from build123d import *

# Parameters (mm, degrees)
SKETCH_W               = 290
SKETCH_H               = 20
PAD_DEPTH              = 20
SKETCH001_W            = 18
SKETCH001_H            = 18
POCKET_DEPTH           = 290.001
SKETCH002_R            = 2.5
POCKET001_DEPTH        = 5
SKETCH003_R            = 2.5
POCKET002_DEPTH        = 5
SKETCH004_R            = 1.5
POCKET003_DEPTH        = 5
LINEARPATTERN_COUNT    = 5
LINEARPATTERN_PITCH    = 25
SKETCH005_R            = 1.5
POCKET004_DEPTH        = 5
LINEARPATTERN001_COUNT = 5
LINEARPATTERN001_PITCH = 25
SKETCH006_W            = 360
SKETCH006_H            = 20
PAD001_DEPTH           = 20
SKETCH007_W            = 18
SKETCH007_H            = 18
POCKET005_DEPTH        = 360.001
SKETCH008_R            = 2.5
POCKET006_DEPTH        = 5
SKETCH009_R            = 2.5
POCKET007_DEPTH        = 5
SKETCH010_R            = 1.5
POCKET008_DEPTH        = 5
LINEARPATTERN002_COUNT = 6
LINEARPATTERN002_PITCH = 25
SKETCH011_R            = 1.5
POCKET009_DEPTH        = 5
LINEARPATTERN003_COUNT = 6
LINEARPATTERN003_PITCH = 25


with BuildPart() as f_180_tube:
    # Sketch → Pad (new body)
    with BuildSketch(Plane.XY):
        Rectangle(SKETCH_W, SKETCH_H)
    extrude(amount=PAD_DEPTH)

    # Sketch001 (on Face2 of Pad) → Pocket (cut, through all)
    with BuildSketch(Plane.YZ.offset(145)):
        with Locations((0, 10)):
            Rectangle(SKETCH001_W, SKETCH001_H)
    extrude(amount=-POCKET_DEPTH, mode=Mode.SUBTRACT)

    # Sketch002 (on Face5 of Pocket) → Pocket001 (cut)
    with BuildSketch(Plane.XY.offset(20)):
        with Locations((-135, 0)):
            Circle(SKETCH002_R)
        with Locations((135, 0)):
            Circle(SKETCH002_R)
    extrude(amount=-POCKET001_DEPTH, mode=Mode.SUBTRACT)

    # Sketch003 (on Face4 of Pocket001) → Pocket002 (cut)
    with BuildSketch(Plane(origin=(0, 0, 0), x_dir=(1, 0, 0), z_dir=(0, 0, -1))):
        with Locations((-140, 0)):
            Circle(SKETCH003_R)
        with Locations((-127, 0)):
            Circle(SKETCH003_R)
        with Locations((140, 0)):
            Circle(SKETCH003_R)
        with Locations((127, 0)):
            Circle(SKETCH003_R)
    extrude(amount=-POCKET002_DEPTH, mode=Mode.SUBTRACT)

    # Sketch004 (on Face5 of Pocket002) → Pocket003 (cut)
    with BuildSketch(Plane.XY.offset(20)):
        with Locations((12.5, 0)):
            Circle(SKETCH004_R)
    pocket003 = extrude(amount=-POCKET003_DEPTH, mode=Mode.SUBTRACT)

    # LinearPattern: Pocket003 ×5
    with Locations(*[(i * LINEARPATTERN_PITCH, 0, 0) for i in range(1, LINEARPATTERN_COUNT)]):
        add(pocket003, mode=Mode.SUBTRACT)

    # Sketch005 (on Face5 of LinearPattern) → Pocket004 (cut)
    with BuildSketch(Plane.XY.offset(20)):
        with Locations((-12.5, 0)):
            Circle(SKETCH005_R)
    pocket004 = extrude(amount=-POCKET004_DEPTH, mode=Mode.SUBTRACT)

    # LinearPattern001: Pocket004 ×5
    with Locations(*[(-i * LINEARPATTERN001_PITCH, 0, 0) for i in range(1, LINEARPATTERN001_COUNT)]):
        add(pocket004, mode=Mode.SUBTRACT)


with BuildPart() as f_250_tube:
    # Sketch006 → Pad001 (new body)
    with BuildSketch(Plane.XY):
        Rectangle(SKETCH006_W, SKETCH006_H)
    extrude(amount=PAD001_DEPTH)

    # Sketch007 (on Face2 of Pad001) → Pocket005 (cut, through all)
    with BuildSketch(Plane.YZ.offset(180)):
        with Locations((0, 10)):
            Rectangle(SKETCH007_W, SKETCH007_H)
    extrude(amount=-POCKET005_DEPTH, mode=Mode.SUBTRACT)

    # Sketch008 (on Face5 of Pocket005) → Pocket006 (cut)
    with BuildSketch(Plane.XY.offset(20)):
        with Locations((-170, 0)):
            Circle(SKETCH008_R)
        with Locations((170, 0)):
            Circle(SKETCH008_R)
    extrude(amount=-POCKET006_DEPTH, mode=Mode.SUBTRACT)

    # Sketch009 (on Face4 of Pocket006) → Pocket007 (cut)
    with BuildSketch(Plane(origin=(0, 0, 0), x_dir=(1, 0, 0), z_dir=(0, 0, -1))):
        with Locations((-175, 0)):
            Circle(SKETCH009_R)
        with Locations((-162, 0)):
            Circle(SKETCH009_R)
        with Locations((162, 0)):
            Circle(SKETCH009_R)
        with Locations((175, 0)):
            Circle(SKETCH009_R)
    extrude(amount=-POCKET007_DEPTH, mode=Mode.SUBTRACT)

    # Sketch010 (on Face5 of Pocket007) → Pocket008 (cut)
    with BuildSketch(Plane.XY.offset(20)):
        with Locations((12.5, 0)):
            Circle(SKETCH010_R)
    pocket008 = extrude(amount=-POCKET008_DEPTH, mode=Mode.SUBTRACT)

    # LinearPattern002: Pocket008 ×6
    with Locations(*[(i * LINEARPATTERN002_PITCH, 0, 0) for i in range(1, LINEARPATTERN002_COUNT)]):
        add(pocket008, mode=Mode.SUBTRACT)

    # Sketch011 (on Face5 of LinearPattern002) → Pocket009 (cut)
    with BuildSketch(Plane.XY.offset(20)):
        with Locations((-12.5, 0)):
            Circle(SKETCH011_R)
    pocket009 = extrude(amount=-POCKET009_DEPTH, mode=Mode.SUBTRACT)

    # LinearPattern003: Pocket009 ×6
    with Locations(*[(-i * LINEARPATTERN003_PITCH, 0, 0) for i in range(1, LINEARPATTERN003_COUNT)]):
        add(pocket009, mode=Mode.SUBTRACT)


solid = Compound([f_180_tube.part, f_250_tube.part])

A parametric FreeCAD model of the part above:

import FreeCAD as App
import Part
import Sketcher
from FreeCAD import Vector

doc = App.newDocument("Part")
params = doc.addObject("Spreadsheet::Sheet", "Params")
for row, (alias, value) in enumerate([
    ("sketch1_width", "290 mm"),
    ("sketch1_height", "20 mm"),
    ("pad1_length", "20 mm"),
    ("sketch2_width", "18 mm"),
    ("sketch3_diameter", "5 mm"),
    ("pocket2_length", "5 mm"),
    ("sketch4_diameter", "5 mm"),
    ("pocket3_length", "5 mm"),
    ("sketch5_diameter", "3 mm"),
    ("pocket4_length", "5 mm"),
    ("linearpattern_pitch", "25 mm"),
    ("sketch6_diameter", "3 mm"),
    ("pocket5_length", "5 mm"),
    ("linearpattern2_pitch", "25 mm"),
    ("sketch7_width", "360 mm"),
    ("sketch7_height", "20 mm"),
    ("pad2_length", "20 mm"),
    ("sketch8_width", "18 mm"),
    ("sketch9_diameter", "5 mm"),
    ("pocket7_length", "5 mm"),
    ("sketch10_diameter", "5 mm"),
    ("pocket8_length", "5 mm"),
    ("sketch11_diameter", "3 mm"),
    ("pocket9_length", "5 mm"),
    ("linearpattern3_pitch", "25 mm"),
    ("sketch12_diameter", "3 mm"),
    ("pocket10_length", "5 mm"),
    ("linearpattern4_pitch", "25 mm"),
], start=1):
    params.set(f"A{row}", alias)
    params.set(f"B{row}", "=" + value)
    params.setAlias(f"B{row}", alias)

body = doc.addObject("PartDesign::Body", "Body")

sketch1 = doc.addObject("Sketcher::SketchObject", "Sketch")
body.addObject(sketch1)
sketch1.AttachmentSupport = (doc.XY_Plane, [""])
sketch1.MapMode = "FlatFace"
sketch1.addGeometry(Part.LineSegment(Vector(-145, 10, 0), Vector(-145, -10, 0)), False)
sketch1.addGeometry(Part.LineSegment(Vector(-145, -10, 0), Vector(145, -10, 0)), False)
sketch1.addGeometry(Part.LineSegment(Vector(145, -10, 0), Vector(145, 10, 0)), False)
sketch1.addGeometry(Part.LineSegment(Vector(145, 10, 0), Vector(-145, 10, 0)), False)
sketch1.addConstraint(Sketcher.Constraint("Coincident", 0, 2, 1, 1))
sketch1.addConstraint(Sketcher.Constraint("Coincident", 1, 2, 2, 1))
sketch1.addConstraint(Sketcher.Constraint("Coincident", 2, 2, 3, 1))
sketch1.addConstraint(Sketcher.Constraint("Coincident", 3, 2, 0, 1))
sketch1.addConstraint(Sketcher.Constraint("Vertical", 0))
sketch1.addConstraint(Sketcher.Constraint("Horizontal", 1))
sketch1.addConstraint(Sketcher.Constraint("Vertical", 2))
sketch1.addConstraint(Sketcher.Constraint("Horizontal", 3))
sketch1.addConstraint(Sketcher.Constraint("Symmetric", 0, 2, 2, 2, -1, 1))
sketch1.addConstraint(Sketcher.Constraint("DistanceX", 1, 1, 1, 2, 290.0))
sketch1.addConstraint(Sketcher.Constraint("DistanceY", 0, 2, 0, 1, 20.0))
sketch1.setExpression("Constraints[9]", "Params.sketch1_width")
sketch1.setExpression("Constraints[10]", "Params.sketch1_height")
pad1 = doc.addObject("PartDesign::Pad", "Pad")
body.addObject(pad1)
pad1.Profile = sketch1
pad1.setExpression("Length", "Params.pad1_length")

sketch2 = doc.addObject("Sketcher::SketchObject", "Sketch001")
body.addObject(sketch2)
sketch2.AttachmentSupport = (doc.YZ_Plane, [""])
sketch2.MapMode = "FlatFace"
sketch2.AttachmentOffset = App.Placement(Vector(0, 0, 145), App.Rotation())
sketch2.addGeometry(Part.LineSegment(Vector(-9, 19, 0), Vector(-9, 1, 0)), False)
sketch2.addGeometry(Part.LineSegment(Vector(-9, 1, 0), Vector(9, 1, 0)), False)
sketch2.addGeometry(Part.LineSegment(Vector(9, 1, 0), Vector(9, 19, 0)), False)
sketch2.addGeometry(Part.LineSegment(Vector(9, 19, 0), Vector(-9, 19, 0)), False)
sketch2.addConstraint(Sketcher.Constraint("Coincident", 0, 2, 1, 1))
sketch2.addConstraint(Sketcher.Constraint("Coincident", 1, 2, 2, 1))
sketch2.addConstraint(Sketcher.Constraint("Coincident", 2, 2, 3, 1))
sketch2.addConstraint(Sketcher.Constraint("Coincident", 3, 2, 0, 1))
sketch2.addConstraint(Sketcher.Constraint("Vertical", 0))
sketch2.addConstraint(Sketcher.Constraint("Horizontal", 1))
sketch2.addConstraint(Sketcher.Constraint("Vertical", 2))
sketch2.addConstraint(Sketcher.Constraint("Horizontal", 3))
sketch2.addConstraint(Sketcher.Constraint("Equal", 3, 0))
sketch2.addConstraint(Sketcher.Constraint("DistanceX", 1, 1, 1, 2, 18.0))
sketch2.addConstraint(Sketcher.Constraint("DistanceX", 0, 2, -1, 1, 9.0))
sketch2.addConstraint(Sketcher.Constraint("DistanceY", -1, 1, 0, 2, 1.0))
sketch2.setExpression("Constraints[9]", "Params.sketch2_width")
pocket1 = doc.addObject("PartDesign::Pocket", "Pocket")
body.addObject(pocket1)
pocket1.Profile = sketch2
pocket1.Type = "ThroughAll"

sketch3 = doc.addObject("Sketcher::SketchObject", "Sketch002")
body.addObject(sketch3)
sketch3.AttachmentSupport = (doc.XY_Plane, [""])
sketch3.MapMode = "FlatFace"
sketch3.AttachmentOffset = App.Placement(Vector(0, 0, 20), App.Rotation())
sketch3.addGeometry(Part.Circle(Vector(-135, 0, 0), Vector(0, 0, 1), 2.5), False)
sketch3.addGeometry(Part.Circle(Vector(135, 0, 0), Vector(0, 0, 1), 2.5), False)
sketch3.addConstraint(Sketcher.Constraint("Equal", 0, 1))
sketch3.addConstraint(Sketcher.Constraint("Symmetric", 0, 3, 1, 3, -1, 1))
sketch3.addConstraint(Sketcher.Constraint("PointOnObject", 0, 3, -1))
sketch3.addConstraint(Sketcher.Constraint("Diameter", 0, 5.0))
sketch3.addConstraint(Sketcher.Constraint("DistanceX", 0, 3, -1, 1, 135.0))
sketch3.setExpression("Constraints[3]", "Params.sketch3_diameter")
pocket2 = doc.addObject("PartDesign::Pocket", "Pocket001")
body.addObject(pocket2)
pocket2.Profile = sketch3
pocket2.setExpression("Length", "Params.pocket2_length")

sketch4 = doc.addObject("Sketcher::SketchObject", "Sketch003")
body.addObject(sketch4)
sketch4.AttachmentSupport = (doc.XY_Plane, [""])
sketch4.MapMode = "FlatFace"
sketch4.addGeometry(Part.Circle(Vector(-140, 0, 0), Vector(0, 0, 1), 2.5), False)
sketch4.addGeometry(Part.Circle(Vector(-127, 0, 0), Vector(0, 0, 1), 2.5), False)
sketch4.addGeometry(Part.Circle(Vector(140, 0, 0), Vector(0, 0, 1), 2.5), False)
sketch4.addGeometry(Part.Circle(Vector(127, 0, 0), Vector(0, 0, 1), 2.5), False)
sketch4.addConstraint(Sketcher.Constraint("Equal", 0, 1))
sketch4.addConstraint(Sketcher.Constraint("Equal", 1, 2))
sketch4.addConstraint(Sketcher.Constraint("Equal", 2, 3))
sketch4.addConstraint(Sketcher.Constraint("Symmetric", 0, 3, 2, 3, -1, 1))
sketch4.addConstraint(Sketcher.Constraint("Symmetric", 1, 3, 3, 3, -1, 1))
sketch4.addConstraint(Sketcher.Constraint("PointOnObject", 0, 3, -1))
sketch4.addConstraint(Sketcher.Constraint("PointOnObject", 1, 3, -1))
sketch4.addConstraint(Sketcher.Constraint("Diameter", 0, 5.0))
sketch4.addConstraint(Sketcher.Constraint("DistanceX", 0, 3, -1, 1, 140.0))
sketch4.addConstraint(Sketcher.Constraint("DistanceX", 1, 3, -1, 1, 127.0))
sketch4.setExpression("Constraints[7]", "Params.sketch4_diameter")
pocket3 = doc.addObject("PartDesign::Pocket", "Pocket002")
body.addObject(pocket3)
pocket3.Profile = sketch4
pocket3.setExpression("Length", "Params.pocket3_length")
pocket3.Reversed = True

sketch5 = doc.addObject("Sketcher::SketchObject", "Sketch004")
body.addObject(sketch5)
sketch5.AttachmentSupport = (doc.XY_Plane, [""])
sketch5.MapMode = "FlatFace"
sketch5.AttachmentOffset = App.Placement(Vector(0, 0, 20), App.Rotation())
sketch5.addGeometry(Part.Circle(Vector(12.5, 0, 0), Vector(0, 0, 1), 1.5), False)
sketch5.addConstraint(Sketcher.Constraint("PointOnObject", 0, 3, -1))
sketch5.addConstraint(Sketcher.Constraint("Diameter", 0, 3.0))
sketch5.addConstraint(Sketcher.Constraint("DistanceX", -1, 1, 0, 3, 12.5))
sketch5.setExpression("Constraints[1]", "Params.sketch5_diameter")
pocket4 = doc.addObject("PartDesign::Pocket", "Pocket003")
body.addObject(pocket4)
pocket4.Profile = sketch5
pocket4.setExpression("Length", "Params.pocket4_length")
doc.recompute()

linearpattern = doc.addObject("PartDesign::LinearPattern", "LinearPattern")
body.addObject(linearpattern)
linearpattern.Originals = [pocket4]
linearpattern.Direction = (doc.X_Axis, [""])
linearpattern.Mode = "offset"
linearpattern.setExpression("Offset", "Params.linearpattern_pitch")
linearpattern.Occurrences = 5
body.Tip = linearpattern

sketch6 = doc.addObject("Sketcher::SketchObject", "Sketch005")
body.addObject(sketch6)
sketch6.AttachmentSupport = (doc.XY_Plane, [""])
sketch6.MapMode = "FlatFace"
sketch6.AttachmentOffset = App.Placement(Vector(0, 0, 20), App.Rotation())
sketch6.addGeometry(Part.Circle(Vector(-12.5, 0, 0), Vector(0, 0, 1), 1.5), False)
sketch6.addConstraint(Sketcher.Constraint("PointOnObject", 0, 3, -1))
sketch6.addConstraint(Sketcher.Constraint("Diameter", 0, 3.0))
sketch6.addConstraint(Sketcher.Constraint("DistanceX", 0, 3, -1, 1, 12.5))
sketch6.setExpression("Constraints[1]", "Params.sketch6_diameter")
pocket5 = doc.addObject("PartDesign::Pocket", "Pocket004")
body.addObject(pocket5)
pocket5.Profile = sketch6
pocket5.setExpression("Length", "Params.pocket5_length")
doc.recompute()

linearpattern2 = doc.addObject("PartDesign::LinearPattern", "LinearPattern001")
body.addObject(linearpattern2)
linearpattern2.Originals = [pocket5]
linearpattern2.Direction = (doc.X_Axis, [""])
linearpattern2.Mode = "offset"
linearpattern2.setExpression("Offset", "Params.linearpattern2_pitch")
linearpattern2.Occurrences = 5
linearpattern2.Reversed = True
body.Tip = linearpattern2
body2 = doc.addObject("PartDesign::Body", "Body001")

sketch7 = doc.addObject("Sketcher::SketchObject", "Sketch006")
body2.addObject(sketch7)
sketch7.AttachmentSupport = (doc.getObject("XY_Plane001"), [""])
sketch7.MapMode = "FlatFace"
sketch7.addGeometry(Part.LineSegment(Vector(-180, 10, 0), Vector(-180, -10, 0)), False)
sketch7.addGeometry(Part.LineSegment(Vector(-180, -10, 0), Vector(180, -10, 0)), False)
sketch7.addGeometry(Part.LineSegment(Vector(180, -10, 0), Vector(180, 10, 0)), False)
sketch7.addGeometry(Part.LineSegment(Vector(180, 10, 0), Vector(-180, 10, 0)), False)
sketch7.addConstraint(Sketcher.Constraint("Coincident", 0, 2, 1, 1))
sketch7.addConstraint(Sketcher.Constraint("Coincident", 1, 2, 2, 1))
sketch7.addConstraint(Sketcher.Constraint("Coincident", 2, 2, 3, 1))
sketch7.addConstraint(Sketcher.Constraint("Coincident", 3, 2, 0, 1))
sketch7.addConstraint(Sketcher.Constraint("Vertical", 0))
sketch7.addConstraint(Sketcher.Constraint("Horizontal", 1))
sketch7.addConstraint(Sketcher.Constraint("Vertical", 2))
sketch7.addConstraint(Sketcher.Constraint("Horizontal", 3))
sketch7.addConstraint(Sketcher.Constraint("Symmetric", 0, 2, 2, 2, -1, 1))
sketch7.addConstraint(Sketcher.Constraint("DistanceX", 1, 1, 1, 2, 360.0))
sketch7.addConstraint(Sketcher.Constraint("DistanceY", 0, 2, 0, 1, 20.0))
sketch7.setExpression("Constraints[9]", "Params.sketch7_width")
sketch7.setExpression("Constraints[10]", "Params.sketch7_height")
pad2 = doc.addObject("PartDesign::Pad", "Pad001")
body2.addObject(pad2)
pad2.Profile = sketch7
pad2.setExpression("Length", "Params.pad2_length")

sketch8 = doc.addObject("Sketcher::SketchObject", "Sketch007")
body2.addObject(sketch8)
sketch8.AttachmentSupport = (doc.getObject("YZ_Plane001"), [""])
sketch8.MapMode = "FlatFace"
sketch8.AttachmentOffset = App.Placement(Vector(0, 0, 180), App.Rotation())
sketch8.addGeometry(Part.LineSegment(Vector(-9, 19, 0), Vector(-9, 1, 0)), False)
sketch8.addGeometry(Part.LineSegment(Vector(-9, 1, 0), Vector(9, 1, 0)), False)
sketch8.addGeometry(Part.LineSegment(Vector(9, 1, 0), Vector(9, 19, 0)), False)
sketch8.addGeometry(Part.LineSegment(Vector(9, 19, 0), Vector(-9, 19, 0)), False)
sketch8.addConstraint(Sketcher.Constraint("Coincident", 0, 2, 1, 1))
sketch8.addConstraint(Sketcher.Constraint("Coincident", 1, 2, 2, 1))
sketch8.addConstraint(Sketcher.Constraint("Coincident", 2, 2, 3, 1))
sketch8.addConstraint(Sketcher.Constraint("Coincident", 3, 2, 0, 1))
sketch8.addConstraint(Sketcher.Constraint("Vertical", 0))
sketch8.addConstraint(Sketcher.Constraint("Horizontal", 1))
sketch8.addConstraint(Sketcher.Constraint("Vertical", 2))
sketch8.addConstraint(Sketcher.Constraint("Horizontal", 3))
sketch8.addConstraint(Sketcher.Constraint("Equal", 3, 0))
sketch8.addConstraint(Sketcher.Constraint("DistanceX", 1, 1, 1, 2, 18.0))
sketch8.addConstraint(Sketcher.Constraint("DistanceX", 0, 2, -1, 1, 9.0))
sketch8.addConstraint(Sketcher.Constraint("DistanceY", -1, 1, 0, 2, 1.0))
sketch8.setExpression("Constraints[9]", "Params.sketch8_width")
pocket6 = doc.addObject("PartDesign::Pocket", "Pocket005")
body2.addObject(pocket6)
pocket6.Profile = sketch8
pocket6.Type = "ThroughAll"

sketch9 = doc.addObject("Sketcher::SketchObject", "Sketch008")
body2.addObject(sketch9)
sketch9.AttachmentSupport = (doc.getObject("XY_Plane001"), [""])
sketch9.MapMode = "FlatFace"
sketch9.AttachmentOffset = App.Placement(Vector(0, 0, 20), App.Rotation())
sketch9.addGeometry(Part.Circle(Vector(-170, 0, 0), Vector(0, 0, 1), 2.5), False)
sketch9.addGeometry(Part.Circle(Vector(170, 0, 0), Vector(0, 0, 1), 2.5), False)
sketch9.addConstraint(Sketcher.Constraint("Equal", 0, 1))
sketch9.addConstraint(Sketcher.Constraint("Symmetric", 0, 3, 1, 3, -1, 1))
sketch9.addConstraint(Sketcher.Constraint("PointOnObject", 0, 3, -1))
sketch9.addConstraint(Sketcher.Constraint("Diameter", 0, 5.0))
sketch9.addConstraint(Sketcher.Constraint("DistanceX", 0, 3, -1, 1, 170.0))
sketch9.setExpression("Constraints[3]", "Params.sketch9_diameter")
pocket7 = doc.addObject("PartDesign::Pocket", "Pocket006")
body2.addObject(pocket7)
pocket7.Profile = sketch9
pocket7.setExpression("Length", "Params.pocket7_length")

sketch10 = doc.addObject("Sketcher::SketchObject", "Sketch009")
body2.addObject(sketch10)
sketch10.AttachmentSupport = (doc.getObject("XY_Plane001"), [""])
sketch10.MapMode = "FlatFace"
sketch10.addGeometry(Part.Circle(Vector(-175, 0, 0), Vector(0, 0, 1), 2.5), False)
sketch10.addGeometry(Part.Circle(Vector(-162, 0, 0), Vector(0, 0, 1), 2.5), False)
sketch10.addGeometry(Part.Circle(Vector(162, 0, 0), Vector(0, 0, 1), 2.5), False)
sketch10.addGeometry(Part.Circle(Vector(175, 0, 0), Vector(0, 0, 1), 2.5), False)
sketch10.addConstraint(Sketcher.Constraint("Equal", 0, 1))
sketch10.addConstraint(Sketcher.Constraint("Equal", 1, 2))
sketch10.addConstraint(Sketcher.Constraint("Equal", 2, 3))
sketch10.addConstraint(Sketcher.Constraint("Symmetric", 1, 3, 2, 3, -1, 1))
sketch10.addConstraint(Sketcher.Constraint("Symmetric", 0, 3, 3, 3, -1, 1))
sketch10.addConstraint(Sketcher.Constraint("PointOnObject", 0, 3, -1))
sketch10.addConstraint(Sketcher.Constraint("PointOnObject", 1, 3, -1))
sketch10.addConstraint(Sketcher.Constraint("Diameter", 0, 5.0))
sketch10.addConstraint(Sketcher.Constraint("DistanceX", 0, 3, -1, 1, 175.0))
sketch10.addConstraint(Sketcher.Constraint("DistanceX", 1, 3, -1, 1, 162.0))
sketch10.setExpression("Constraints[7]", "Params.sketch10_diameter")
pocket8 = doc.addObject("PartDesign::Pocket", "Pocket007")
body2.addObject(pocket8)
pocket8.Profile = sketch10
pocket8.setExpression("Length", "Params.pocket8_length")
pocket8.Reversed = True

sketch11 = doc.addObject("Sketcher::SketchObject", "Sketch010")
body2.addObject(sketch11)
sketch11.AttachmentSupport = (doc.getObject("XY_Plane001"), [""])
sketch11.MapMode = "FlatFace"
sketch11.AttachmentOffset = App.Placement(Vector(0, 0, 20), App.Rotation())
sketch11.addGeometry(Part.Circle(Vector(12.5, 0, 0), Vector(0, 0, 1), 1.5), False)
sketch11.addConstraint(Sketcher.Constraint("PointOnObject", 0, 3, -1))
sketch11.addConstraint(Sketcher.Constraint("Diameter", 0, 3.0))
sketch11.addConstraint(Sketcher.Constraint("DistanceX", -1, 1, 0, 3, 12.5))
sketch11.setExpression("Constraints[1]", "Params.sketch11_diameter")
pocket9 = doc.addObject("PartDesign::Pocket", "Pocket008")
body2.addObject(pocket9)
pocket9.Profile = sketch11
pocket9.setExpression("Length", "Params.pocket9_length")
doc.recompute()

linearpattern3 = doc.addObject("PartDesign::LinearPattern", "LinearPattern002")
body2.addObject(linearpattern3)
linearpattern3.Originals = [pocket9]
linearpattern3.Direction = (doc.getObject("X_Axis001"), [""])
linearpattern3.Mode = "offset"
linearpattern3.setExpression("Offset", "Params.linearpattern3_pitch")
linearpattern3.Occurrences = 6
body2.Tip = linearpattern3

sketch12 = doc.addObject("Sketcher::SketchObject", "Sketch011")
body2.addObject(sketch12)
sketch12.AttachmentSupport = (doc.getObject("XY_Plane001"), [""])
sketch12.MapMode = "FlatFace"
sketch12.AttachmentOffset = App.Placement(Vector(0, 0, 20), App.Rotation())
sketch12.addGeometry(Part.Circle(Vector(-12.5, 0, 0), Vector(0, 0, 1), 1.5), False)
sketch12.addConstraint(Sketcher.Constraint("PointOnObject", 0, 3, -1))
sketch12.addConstraint(Sketcher.Constraint("Diameter", 0, 3.0))
sketch12.addConstraint(Sketcher.Constraint("DistanceX", 0, 3, -1, 1, 12.5))
sketch12.setExpression("Constraints[1]", "Params.sketch12_diameter")
pocket10 = doc.addObject("PartDesign::Pocket", "Pocket009")
body2.addObject(pocket10)
pocket10.Profile = sketch12
pocket10.setExpression("Length", "Params.pocket10_length")
doc.recompute()

linearpattern4 = doc.addObject("PartDesign::LinearPattern", "LinearPattern003")
body2.addObject(linearpattern4)
linearpattern4.Originals = [pocket10]
linearpattern4.Direction = (doc.getObject("X_Axis001"), [""])
linearpattern4.Mode = "offset"
linearpattern4.setExpression("Offset", "Params.linearpattern4_pitch")
linearpattern4.Occurrences = 6
linearpattern4.Reversed = True
body2.Tip = linearpattern4

doc.recompute()
